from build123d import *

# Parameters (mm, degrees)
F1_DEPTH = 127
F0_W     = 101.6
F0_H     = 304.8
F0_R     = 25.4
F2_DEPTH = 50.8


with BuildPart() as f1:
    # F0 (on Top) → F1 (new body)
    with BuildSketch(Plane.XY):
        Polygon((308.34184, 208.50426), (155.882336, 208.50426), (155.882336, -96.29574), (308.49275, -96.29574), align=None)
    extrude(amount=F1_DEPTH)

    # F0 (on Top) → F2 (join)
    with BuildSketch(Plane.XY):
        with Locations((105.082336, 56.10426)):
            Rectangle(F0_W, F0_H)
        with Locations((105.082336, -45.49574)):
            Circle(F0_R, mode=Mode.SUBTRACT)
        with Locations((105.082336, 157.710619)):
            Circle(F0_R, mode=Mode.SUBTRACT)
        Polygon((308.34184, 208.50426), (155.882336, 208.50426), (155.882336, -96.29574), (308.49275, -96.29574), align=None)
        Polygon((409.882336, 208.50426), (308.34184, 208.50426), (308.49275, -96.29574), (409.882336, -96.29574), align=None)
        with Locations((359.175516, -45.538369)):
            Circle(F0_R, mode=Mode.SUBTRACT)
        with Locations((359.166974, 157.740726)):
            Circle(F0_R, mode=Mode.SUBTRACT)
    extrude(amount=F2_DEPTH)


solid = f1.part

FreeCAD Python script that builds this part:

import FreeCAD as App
import Part
import Sketcher
Q = App.Units.Quantity

doc = App.newDocument("Part")
params = doc.addObject("Spreadsheet::Sheet", "Params")
for row, (alias, value) in enumerate([
    ("sketch1_height", "12 in"),
    ("pad1_length", "5 in"),
    ("sketch2_diameter", "2 in"),
    ("sketch2_width", "14 in"),
    ("sketch2_height", "12 in"),
    ("pad2_length", "2 in"),
], start=1):
    params.set(f"A{row}", alias)
    params.set(f"B{row}", "=" + value)
    params.setAlias(f"B{row}", alias)

body = doc.addObject("PartDesign::Body", "Body")

sketch1 = doc.addObject("Sketcher::SketchObject", "Sketch")
body.addObject(sketch1)
sketch1.AttachmentSupport = (doc.XY_Plane, [""])
sketch1.MapMode = "FlatFace"
sketch1.addGeometry([
    Part.LineSegment(App.Vector(308, 209, 0), App.Vector(156, 209, 0)),
    Part.LineSegment(App.Vector(156, 209, 0), App.Vector(156, -96, 0)),
    Part.LineSegment(App.Vector(156, -96, 0), App.Vector(308, -96, 0)),
    Part.LineSegment(App.Vector(308, -96, 0), App.Vector(308, 209, 0)),
], False)
sketch1.addConstraint([
    Sketcher.Constraint("Coincident", 0, 2, 1, 1),
    Sketcher.Constraint("Coincident", 1, 2, 2, 1),
    Sketcher.Constraint("Coincident", 2, 2, 3, 1),
    Sketcher.Constraint("Coincident", 3, 2, 0, 1),
    Sketcher.Constraint("Horizontal", 0),
    Sketcher.Constraint("Vertical", 1),
    Sketcher.Constraint("Horizontal", 2),
    Sketcher.Constraint("DistanceY", 1, 2, 1, 1, Q("12 in")),
    Sketcher.Constraint("DistanceX", -1, 1, 0, 2, Q("6.1370998 in")),
    Sketcher.Constraint("DistanceX", 0, 2, 0, 1, Q("152.459504 mm")),
    Sketcher.Constraint("DistanceX", 2, 1, 2, 2, Q("152.610414 mm")),
    Sketcher.Constraint("DistanceY", -1, 1, 0, 2, Q("208.50426 mm")),
])
sketch1.setExpression("Constraints[7]", "Params.sketch1_height")
pad1 = doc.addObject("PartDesign::Pad", "Pad")
body.addObject(pad1)
pad1.Profile = sketch1
pad1.setExpression("Length", "Params.pad1_length")

sketch2 = doc.addObject("Sketcher::SketchObject", "Sketch001")
body.addObject(sketch2)
sketch2.AttachmentSupport = (doc.XY_Plane, [""])
sketch2.MapMode = "FlatFace"
sketch2.addGeometry([
    Part.LineSegment(App.Vector(54, 209, 0), App.Vector(54, -96, 0)),
    Part.LineSegment(App.Vector(54, -96, 0), App.Vector(410, -96, 0)),
    Part.LineSegment(App.Vector(410, -96, 0), App.Vector(410, 209, 0)),
    Part.LineSegment(App.Vector(410, 209, 0), App.Vector(54, 209, 0)),
    Part.Circle(App.Vector(105, -45, 0), App.Vector(0, 0, 1), 25),
    Part.Circle(App.Vector(359, -46, 0), App.Vector(0, 0, 1), 25),
    Part.Circle(App.Vector(105, 158, 0), App.Vector(0, 0, 1), 25),
    Part.Circle(App.Vector(359, 158, 0), App.Vector(0, 0, 1), 25),
], False)
sketch2.addConstraint([
    Sketcher.Constraint("Coincident", 0, 2, 1, 1),
    Sketcher.Constraint("Coincident", 1, 2, 2, 1),
    Sketcher.Constraint("Coincident", 2, 2, 3, 1),
    Sketcher.Constraint("Coincident", 3, 2, 0, 1),
    Sketcher.Constraint("Vertical", 0),
    Sketcher.Constraint("Horizontal", 1),
    Sketcher.Constraint("Vertical", 2),
    Sketcher.Constraint("Horizontal", 3),
    Sketcher.Constraint("Equal", 4, 5),
    Sketcher.Constraint("Equal", 5, 6),
    Sketcher.Constraint("Equal", 6, 7),
    Sketcher.Constraint("Vertical", 4, 3, 6, 3),
    Sketcher.Constraint("Diameter", 4, Q("2 in")),
    Sketcher.Constraint("DistanceX", 1, 1, 1, 2, Q("14 in")),
    Sketcher.Constraint("DistanceY", 0, 2, 0, 1, Q("12 in")),
    Sketcher.Constraint("DistanceX", 0, 2, 4, 3, Q("2 in")),
    Sketcher.Constraint("DistanceY", 0, 2, 4, 3, Q("2 in")),
    Sketcher.Constraint("DistanceX", -1, 1, 4, 3, Q("4.1370998 in")),
    Sketcher.Constraint("DistanceY", 4, 3, -1, 1, Q("45.49574 mm")),
    Sketcher.Constraint("DistanceY", 5, 3, -1, 1, Q("45.538369 mm")),
    Sketcher.Constraint("DistanceY", -1, 1, 6, 3, Q("157.710619 mm")),
    Sketcher.Constraint("DistanceX", 4, 3, 5, 3, Q("254.09318 mm")),
    Sketcher.Constraint("DistanceX", 0, 2, 7, 3, Q("304.884638 mm")),
    Sketcher.Constraint("DistanceY", -1, 1, 7, 3, Q("157.740726 mm")),
])
sketch2.setExpression("Constraints[12]", "Params.sketch2_diameter")
sketch2.setExpression("Constraints[13]", "Params.sketch2_width")
sketch2.setExpression("Constraints[14]", "Params.sketch2_height")
pad2 = doc.addObject("PartDesign::Pad", "Pad001")
body.addObject(pad2)
pad2.Profile = sketch2
pad2.setExpression("Length", "Params.pad2_length")

doc.recompute()
